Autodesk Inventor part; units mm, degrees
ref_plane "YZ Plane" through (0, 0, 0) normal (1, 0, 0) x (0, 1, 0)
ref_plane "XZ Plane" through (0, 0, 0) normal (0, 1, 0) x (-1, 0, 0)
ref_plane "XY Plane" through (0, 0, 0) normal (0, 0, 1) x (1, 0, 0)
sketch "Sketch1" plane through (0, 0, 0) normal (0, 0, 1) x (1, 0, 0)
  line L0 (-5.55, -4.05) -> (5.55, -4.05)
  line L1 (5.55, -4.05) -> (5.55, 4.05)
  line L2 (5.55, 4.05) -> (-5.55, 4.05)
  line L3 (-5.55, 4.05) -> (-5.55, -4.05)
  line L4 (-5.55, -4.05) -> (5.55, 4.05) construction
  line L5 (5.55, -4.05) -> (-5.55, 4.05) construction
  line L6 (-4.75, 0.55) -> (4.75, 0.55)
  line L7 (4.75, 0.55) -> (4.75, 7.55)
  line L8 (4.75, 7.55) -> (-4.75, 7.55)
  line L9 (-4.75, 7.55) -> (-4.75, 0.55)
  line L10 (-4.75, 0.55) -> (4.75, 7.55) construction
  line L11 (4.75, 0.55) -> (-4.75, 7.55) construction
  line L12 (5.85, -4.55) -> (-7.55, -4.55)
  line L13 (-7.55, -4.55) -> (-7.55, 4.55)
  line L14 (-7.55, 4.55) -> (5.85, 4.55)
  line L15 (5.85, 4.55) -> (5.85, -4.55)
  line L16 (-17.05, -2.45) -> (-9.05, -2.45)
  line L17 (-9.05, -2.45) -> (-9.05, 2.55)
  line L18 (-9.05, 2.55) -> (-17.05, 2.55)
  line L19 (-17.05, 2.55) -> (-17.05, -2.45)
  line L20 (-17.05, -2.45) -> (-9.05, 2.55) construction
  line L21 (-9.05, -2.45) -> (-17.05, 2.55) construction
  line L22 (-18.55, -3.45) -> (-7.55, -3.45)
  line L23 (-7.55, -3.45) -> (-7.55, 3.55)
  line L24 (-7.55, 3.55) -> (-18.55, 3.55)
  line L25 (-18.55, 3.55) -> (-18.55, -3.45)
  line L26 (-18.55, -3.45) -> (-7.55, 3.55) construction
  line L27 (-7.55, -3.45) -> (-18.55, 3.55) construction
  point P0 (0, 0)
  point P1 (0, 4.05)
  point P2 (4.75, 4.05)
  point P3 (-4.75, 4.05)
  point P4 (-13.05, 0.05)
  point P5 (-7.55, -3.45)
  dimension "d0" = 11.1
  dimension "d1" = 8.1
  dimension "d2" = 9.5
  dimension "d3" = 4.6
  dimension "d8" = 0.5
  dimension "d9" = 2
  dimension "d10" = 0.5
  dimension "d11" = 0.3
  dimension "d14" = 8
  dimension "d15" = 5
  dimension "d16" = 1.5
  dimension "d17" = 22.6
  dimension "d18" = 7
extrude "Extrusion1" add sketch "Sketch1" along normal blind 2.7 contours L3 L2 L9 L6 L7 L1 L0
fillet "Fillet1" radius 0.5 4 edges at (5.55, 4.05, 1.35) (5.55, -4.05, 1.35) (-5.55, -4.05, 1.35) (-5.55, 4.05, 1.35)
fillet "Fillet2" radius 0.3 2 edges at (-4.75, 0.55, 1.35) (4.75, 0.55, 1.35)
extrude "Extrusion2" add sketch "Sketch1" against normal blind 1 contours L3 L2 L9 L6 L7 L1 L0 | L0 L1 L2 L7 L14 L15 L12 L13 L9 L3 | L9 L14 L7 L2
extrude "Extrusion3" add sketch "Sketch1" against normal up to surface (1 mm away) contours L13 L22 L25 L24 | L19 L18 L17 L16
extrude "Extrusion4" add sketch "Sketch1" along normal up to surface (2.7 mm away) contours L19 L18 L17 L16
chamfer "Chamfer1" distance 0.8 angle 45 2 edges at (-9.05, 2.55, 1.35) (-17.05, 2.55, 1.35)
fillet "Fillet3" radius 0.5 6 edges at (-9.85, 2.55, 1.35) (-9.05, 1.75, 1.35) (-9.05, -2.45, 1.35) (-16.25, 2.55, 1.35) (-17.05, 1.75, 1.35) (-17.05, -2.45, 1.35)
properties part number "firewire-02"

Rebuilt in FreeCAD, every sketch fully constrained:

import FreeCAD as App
import Part
import Sketcher
Q = App.Units.Quantity


def edges_at(feature, points):
    """Names of the edges that pass closest to the given points."""
    edges = feature.Shape.Edges
    near = lambda p: min(range(len(edges)), key=lambda i: edges[i].distToShape(Part.Vertex(*p))[0])
    return sorted({f"Edge{near(p) + 1}" for p in points})


def add_polygon(sketch, points):
    """Adds a closed chain of lines whose ends are joined by coincident constraints."""
    first, n = sketch.GeometryCount, len(points)
    for a, b in zip(points, points[1:] + points[:1]):
        sketch.addGeometry(Part.LineSegment(App.Vector(*a, 0), App.Vector(*b, 0)), False)
    for i in range(n):
        sketch.addConstraint(Sketcher.Constraint("Coincident", first + i, 2, first + (i + 1) % n, 1))

doc = App.newDocument("Part")
body = doc.addObject("PartDesign::Body", "Body")

# Sketch on XY plane
sketch1 = body.newObject("Sketcher::SketchObject", "Sketch")
sketch1.AttachmentSupport = (doc.getObject("XY_Plane"), [""])
sketch1.MapMode = "FlatFace"
add_polygon(sketch1, [(-5.5, 4), (-5.5, -4), (5.5, -4), (5.5, 4), (4.8, 4), (4.8, 0.6), (-4.8, 0.6), (-4.8, 4)])  # lines 0-7
sketch1.addConstraint([
    Sketcher.Constraint("Vertical", 0),
    Sketcher.Constraint("Horizontal", 1),
    Sketcher.Constraint("Vertical", 2),
    Sketcher.Constraint("Horizontal", 3),
    Sketcher.Constraint("Vertical", 4),
    Sketcher.Constraint("Horizontal", 5),
    Sketcher.Constraint("Vertical", 6),
    Sketcher.Constraint("Horizontal", 7),
    Sketcher.Constraint("Symmetric", 0, 2, 2, 2, -1, 1),
    Sketcher.Constraint("Symmetric", 3, 2, 6, 2, -2),
    Sketcher.Constraint("DistanceX", 1, 1, 1, 2, Q("11.1 mm")),
    Sketcher.Constraint("DistanceX", 5, 2, 5, 1, Q("9.5 mm")),
    Sketcher.Constraint("DistanceY", 0, 2, 0, 1, Q("8.1 mm")),
    Sketcher.Constraint("DistanceY", 1, 2, 4, 2, Q("4.6 mm")),
])
pad1 = body.newObject("PartDesign::Pad", "Pad")
pad1.Profile = sketch1
pad1.Length = 2.7
doc.recompute()

fillet = body.newObject("PartDesign::Fillet", "Fillet")
fillet.Base = (pad1, edges_at(pad1, [
    (5.55, 4.05, 1.35),
    (5.55, -4.05, 1.35),
    (-5.55, -4.05, 1.35),
    (-5.55, 4.05, 1.35),
]))
fillet.Radius = 0.5
doc.recompute()

fillet2 = body.newObject("PartDesign::Fillet", "Fillet001")
fillet2.Base = (fillet, edges_at(fillet, [(-4.75, 0.55, 1.35), (4.75, 0.55, 1.35)]))
fillet2.Radius = 0.3

# Sketch on XY plane
sketch2 = body.newObject("Sketcher::SketchObject", "Sketch001")
sketch2.AttachmentSupport = (doc.getObject("XY_Plane"), [""])
sketch2.MapMode = "FlatFace"
add_polygon(sketch2, [(-7.5, 4.5), (-7.5, -4.5), (5.8, -4.5), (5.8, 4.5)])  # lines 0-3
add_polygon(sketch2, [(-4.8, 0.6), (-4.8, 4), (4.8, 4), (4.8, 0.6)])  # lines 4-7
sketch2.addConstraint([
    Sketcher.Constraint("Vertical", 0),
    Sketcher.Constraint("Horizontal", 1),
    Sketcher.Constraint("Vertical", 2),
    Sketcher.Constraint("Horizontal", 3),
    Sketcher.Constraint("Vertical", 4),
    Sketcher.Constraint("Horizontal", 5),
    Sketcher.Constraint("Vertical", 6),
    Sketcher.Constraint("Horizontal", 7),
    Sketcher.Constraint("DistanceX", 5, 1, 5, 2, Q("9.5 mm")),
    Sketcher.Constraint("DistanceY", 4, 2, 3, 2, Q("0.5 mm")),
    Sketcher.Constraint("DistanceX", 1, 1, 1, 2, Q("13.4 mm")),
    Sketcher.Constraint("DistanceY", 0, 2, 0, 1, Q("9.1 mm")),
    Sketcher.Constraint("DistanceY", 4, 1, 4, 2, Q("3.5 mm")),
    Sketcher.Constraint("DistanceX", 3, 2, 4, 2, Q("2.8 mm")),
    Sketcher.Constraint("DistanceX", 0, 2, -1, 1, Q("7.55 mm")),
    Sketcher.Constraint("DistanceY", 0, 2, -1, 1, Q("4.55 mm")),
])
pad2 = body.newObject("PartDesign::Pad", "Pad001")
pad2.Profile = sketch2
pad2.Length = 1
pad2.Reversed = True

# Sketch on XY plane
sketch3 = body.newObject("Sketcher::SketchObject", "Sketch002")
sketch3.AttachmentSupport = (doc.getObject("XY_Plane"), [""])
sketch3.MapMode = "FlatFace"
add_polygon(sketch3, [(-8, -3), (-8, 4), (-19, 4), (-19, -3)])  # lines 0-3
sketch3.addConstraint([
    Sketcher.Constraint("Vertical", 0),
    Sketcher.Constraint("Horizontal", 1),
    Sketcher.Constraint("Vertical", 2),
    Sketcher.Constraint("Horizontal", 3),
    Sketcher.Constraint("DistanceY", 0, 1, 0, 2, Q("7 mm")),
    Sketcher.Constraint("DistanceX", 1, 2, 1, 1, Q("11 mm")),
    Sketcher.Constraint("DistanceX", 0, 2, -1, 1, Q("7.55 mm")),
    Sketcher.Constraint("DistanceY", -1, 1, 0, 2, Q("3.55 mm")),
])
pad3 = body.newObject("PartDesign::Pad", "Pad002")
pad3.Profile = sketch3
pad3.Length = 1
pad3.Reversed = True

# Sketch on XY plane
sketch4 = body.newObject("Sketcher::SketchObject", "Sketch003")
sketch4.AttachmentSupport = (doc.getObject("XY_Plane"), [""])
sketch4.MapMode = "FlatFace"
add_polygon(sketch4, [(-17, 3), (-17, -2), (-9, -2), (-9, 3)])  # lines 0-3
sketch4.addConstraint([
    Sketcher.Constraint("Vertical", 0),
    Sketcher.Constraint("Horizontal", 1),
    Sketcher.Constraint("Vertical", 2),
    Sketcher.Constraint("Horizontal", 3),
    Sketcher.Constraint("DistanceX", 1, 1, 1, 2, Q("8 mm")),
    Sketcher.Constraint("DistanceY", 0, 2, 0, 1, Q("5 mm")),
    Sketcher.Constraint("DistanceX", 0, 2, -1, 1, Q("17.05 mm")),
    Sketcher.Constraint("DistanceY", 0, 2, -1, 1, Q("2.45 mm")),
])
pad4 = body.newObject("PartDesign::Pad", "Pad003")
pad4.Profile = sketch4
pad4.Length = 2.7
doc.recompute()

chamfer = body.newObject("PartDesign::Chamfer", "Chamfer")
chamfer.Base = (pad4, edges_at(pad4, [(-9.05, 2.55, 1.35), (-17.05, 2.55, 1.35)]))
chamfer.Size = 0.8
doc.recompute()

fillet3 = body.newObject("PartDesign::Fillet", "Fillet002")
fillet3.Base = (chamfer, edges_at(chamfer, [
    (-9.85, 2.55, 1.35),
    (-9.05, 1.75, 1.35),
    (-9.05, -2.45, 1.35),
    (-16.25, 2.55, 1.35),
    (-17.05, 1.75, 1.35),
    (-17.05, -2.45, 1.35),
]))
fillet3.Radius = 0.5

doc.recompute()
